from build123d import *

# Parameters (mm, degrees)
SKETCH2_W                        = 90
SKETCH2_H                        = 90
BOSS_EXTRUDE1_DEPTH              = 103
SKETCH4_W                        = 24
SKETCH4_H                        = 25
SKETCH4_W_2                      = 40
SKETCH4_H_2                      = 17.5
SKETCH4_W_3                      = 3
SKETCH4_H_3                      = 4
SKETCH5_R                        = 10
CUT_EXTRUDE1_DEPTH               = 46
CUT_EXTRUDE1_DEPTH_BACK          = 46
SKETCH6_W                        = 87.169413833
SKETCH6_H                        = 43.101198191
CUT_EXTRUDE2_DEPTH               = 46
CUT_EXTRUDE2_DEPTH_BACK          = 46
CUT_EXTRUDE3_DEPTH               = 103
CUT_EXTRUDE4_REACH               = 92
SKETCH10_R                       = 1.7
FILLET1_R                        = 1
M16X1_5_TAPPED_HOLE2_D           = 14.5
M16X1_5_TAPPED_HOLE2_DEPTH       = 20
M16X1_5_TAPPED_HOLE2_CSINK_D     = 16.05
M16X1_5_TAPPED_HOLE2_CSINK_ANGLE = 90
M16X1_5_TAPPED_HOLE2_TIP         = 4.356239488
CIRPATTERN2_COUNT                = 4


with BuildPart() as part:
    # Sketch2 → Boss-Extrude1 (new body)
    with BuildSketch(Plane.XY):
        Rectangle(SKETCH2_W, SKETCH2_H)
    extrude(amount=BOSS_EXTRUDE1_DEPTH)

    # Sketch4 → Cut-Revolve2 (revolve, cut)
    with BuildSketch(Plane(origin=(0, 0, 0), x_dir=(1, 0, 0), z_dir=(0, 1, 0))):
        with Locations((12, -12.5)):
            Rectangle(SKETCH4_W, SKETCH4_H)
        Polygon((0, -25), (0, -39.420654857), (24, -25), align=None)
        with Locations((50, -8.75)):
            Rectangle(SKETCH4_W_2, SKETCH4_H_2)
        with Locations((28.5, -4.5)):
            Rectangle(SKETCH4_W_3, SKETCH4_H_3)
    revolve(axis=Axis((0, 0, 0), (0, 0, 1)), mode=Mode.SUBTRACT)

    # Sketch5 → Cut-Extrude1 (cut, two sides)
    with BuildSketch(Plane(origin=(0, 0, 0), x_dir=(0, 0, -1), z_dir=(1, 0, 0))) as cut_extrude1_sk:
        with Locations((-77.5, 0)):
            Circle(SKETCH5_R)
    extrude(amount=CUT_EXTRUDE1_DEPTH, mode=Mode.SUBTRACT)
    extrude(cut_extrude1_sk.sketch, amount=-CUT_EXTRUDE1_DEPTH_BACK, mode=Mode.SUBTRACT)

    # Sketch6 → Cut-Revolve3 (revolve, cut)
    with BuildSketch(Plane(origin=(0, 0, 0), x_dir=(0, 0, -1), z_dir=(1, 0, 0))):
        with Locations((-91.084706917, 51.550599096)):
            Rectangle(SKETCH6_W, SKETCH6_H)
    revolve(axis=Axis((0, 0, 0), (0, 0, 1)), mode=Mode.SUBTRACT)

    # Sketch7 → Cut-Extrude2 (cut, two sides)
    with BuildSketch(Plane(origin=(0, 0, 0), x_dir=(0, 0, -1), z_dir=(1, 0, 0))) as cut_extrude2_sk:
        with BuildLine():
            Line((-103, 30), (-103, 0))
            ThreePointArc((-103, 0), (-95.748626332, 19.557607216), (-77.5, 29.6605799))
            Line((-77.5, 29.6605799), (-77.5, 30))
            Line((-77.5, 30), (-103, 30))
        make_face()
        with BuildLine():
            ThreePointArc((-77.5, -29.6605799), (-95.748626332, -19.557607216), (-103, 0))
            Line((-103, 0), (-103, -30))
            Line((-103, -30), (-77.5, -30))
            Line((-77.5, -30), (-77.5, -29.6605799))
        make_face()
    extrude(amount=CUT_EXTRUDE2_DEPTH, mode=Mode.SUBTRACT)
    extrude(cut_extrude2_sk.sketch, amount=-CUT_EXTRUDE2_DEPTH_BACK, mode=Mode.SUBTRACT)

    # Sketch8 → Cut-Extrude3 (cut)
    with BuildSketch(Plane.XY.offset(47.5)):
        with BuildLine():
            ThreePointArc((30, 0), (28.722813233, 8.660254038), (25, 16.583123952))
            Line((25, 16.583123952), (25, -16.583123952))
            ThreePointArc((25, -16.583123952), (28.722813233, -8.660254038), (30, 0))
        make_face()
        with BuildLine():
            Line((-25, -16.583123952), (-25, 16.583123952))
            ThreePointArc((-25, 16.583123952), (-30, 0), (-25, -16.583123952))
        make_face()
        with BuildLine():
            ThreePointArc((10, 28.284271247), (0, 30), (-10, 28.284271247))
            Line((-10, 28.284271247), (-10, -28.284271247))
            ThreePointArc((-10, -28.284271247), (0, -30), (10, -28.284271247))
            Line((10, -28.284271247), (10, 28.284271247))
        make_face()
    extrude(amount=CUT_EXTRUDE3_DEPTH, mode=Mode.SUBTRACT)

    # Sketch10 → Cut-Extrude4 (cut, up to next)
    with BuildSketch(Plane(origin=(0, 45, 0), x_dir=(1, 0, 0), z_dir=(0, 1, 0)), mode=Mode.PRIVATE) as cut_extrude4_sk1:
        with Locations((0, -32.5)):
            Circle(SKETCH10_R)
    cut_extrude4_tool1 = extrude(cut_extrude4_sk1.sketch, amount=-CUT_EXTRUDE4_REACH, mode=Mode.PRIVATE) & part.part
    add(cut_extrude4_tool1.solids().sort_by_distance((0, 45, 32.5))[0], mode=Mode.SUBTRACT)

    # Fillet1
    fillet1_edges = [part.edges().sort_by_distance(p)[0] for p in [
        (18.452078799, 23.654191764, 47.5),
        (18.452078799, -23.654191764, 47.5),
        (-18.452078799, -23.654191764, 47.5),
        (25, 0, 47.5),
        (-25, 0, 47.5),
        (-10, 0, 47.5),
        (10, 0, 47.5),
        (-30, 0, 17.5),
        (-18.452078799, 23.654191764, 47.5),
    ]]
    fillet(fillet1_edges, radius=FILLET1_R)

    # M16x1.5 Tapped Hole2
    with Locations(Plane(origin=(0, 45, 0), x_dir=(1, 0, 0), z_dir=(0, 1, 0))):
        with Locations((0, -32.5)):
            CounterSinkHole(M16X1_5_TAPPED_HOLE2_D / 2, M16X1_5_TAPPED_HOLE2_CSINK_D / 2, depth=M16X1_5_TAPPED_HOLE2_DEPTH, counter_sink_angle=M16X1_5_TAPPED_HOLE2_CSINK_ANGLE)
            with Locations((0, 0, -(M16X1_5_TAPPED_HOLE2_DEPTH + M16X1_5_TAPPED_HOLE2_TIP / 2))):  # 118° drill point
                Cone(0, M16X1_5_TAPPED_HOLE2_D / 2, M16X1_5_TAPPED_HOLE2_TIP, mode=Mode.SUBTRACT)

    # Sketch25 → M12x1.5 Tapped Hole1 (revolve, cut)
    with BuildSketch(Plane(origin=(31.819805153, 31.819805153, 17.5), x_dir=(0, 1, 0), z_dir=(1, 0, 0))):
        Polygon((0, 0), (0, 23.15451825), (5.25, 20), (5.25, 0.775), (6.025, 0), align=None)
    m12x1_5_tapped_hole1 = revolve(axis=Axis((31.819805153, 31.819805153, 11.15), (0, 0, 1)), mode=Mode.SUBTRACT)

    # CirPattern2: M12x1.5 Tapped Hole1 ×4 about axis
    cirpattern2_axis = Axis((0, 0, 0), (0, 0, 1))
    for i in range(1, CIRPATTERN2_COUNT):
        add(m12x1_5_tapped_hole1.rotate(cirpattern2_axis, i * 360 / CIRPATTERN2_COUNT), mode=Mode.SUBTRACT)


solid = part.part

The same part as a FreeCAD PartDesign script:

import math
import FreeCAD as App
import Part
import Sketcher
Q = App.Units.Quantity


def edges_at(feature, points):
    """Names of the edges that pass closest to the given points."""
    edges = feature.Shape.Edges
    near = lambda p: min(range(len(edges)), key=lambda i: edges[i].distToShape(Part.Vertex(*p))[0])
    return sorted({f"Edge{near(p) + 1}" for p in points})


def add_polygon(sketch, points):
    """Adds a closed chain of lines whose ends are joined by coincident constraints."""
    first, n = sketch.GeometryCount, len(points)
    for a, b in zip(points, points[1:] + points[:1]):
        sketch.addGeometry(Part.LineSegment(App.Vector(*a, 0), App.Vector(*b, 0)), False)
    for i in range(n):
        sketch.addConstraint(Sketcher.Constraint("Coincident", first + i, 2, first + (i + 1) % n, 1))

doc = App.newDocument("Part")
body = doc.addObject("PartDesign::Body", "Body")

sketch1 = doc.addObject("Sketcher::SketchObject", "Sketch")
body.addObject(sketch1)
sketch1.AttachmentSupport = (doc.XY_Plane, [""])
sketch1.MapMode = "FlatFace"
add_polygon(sketch1, [(-45, 45), (-45, -45), (45, -45), (45, 45)])
sketch1.addConstraint(Sketcher.Constraint("Vertical", 0))
sketch1.addConstraint(Sketcher.Constraint("Horizontal", 1))
sketch1.addConstraint(Sketcher.Constraint("Vertical", 2))
sketch1.addConstraint(Sketcher.Constraint("Horizontal", 3))
sketch1.addConstraint(Sketcher.Constraint("Symmetric", 0, 2, 2, 2, -1, 1))
sketch1.addConstraint(Sketcher.Constraint("Equal", 3, 0))
sketch1.addConstraint(Sketcher.Constraint("DistanceX", 1, 1, 1, 2, Q("90 mm")))
pad1 = doc.addObject("PartDesign::Pad", "Pad")
body.addObject(pad1)
pad1.Profile = sketch1
pad1.Length = 103

sketch2 = doc.addObject("Sketcher::SketchObject", "Sketch001")
body.addObject(sketch2)
sketch2.AttachmentSupport = (doc.XZ_Plane, [""])
sketch2.MapMode = "FlatFace"
add_polygon(sketch2, [(0, 0), (0, 39.4), (24, 25), (24, 0)])
add_polygon(sketch2, [(30, 6.5), (30, 17.5), (70, 17.5), (70, 0), (30, 0), (30, 2.5), (27, 2.5), (27, 6.5)])
sketch2.addConstraint(Sketcher.Constraint("Vertical", 0))
sketch2.addConstraint(Sketcher.Constraint("Vertical", 2))
sketch2.addConstraint(Sketcher.Constraint("Horizontal", 3))
sketch2.addConstraint(Sketcher.Constraint("Vertical", 4))
sketch2.addConstraint(Sketcher.Constraint("Horizontal", 5))
sketch2.addConstraint(Sketcher.Constraint("Vertical", 6))
sketch2.addConstraint(Sketcher.Constraint("Horizontal", 7))
sketch2.addConstraint(Sketcher.Constraint("Vertical", 8))
sketch2.addConstraint(Sketcher.Constraint("Horizontal", 9))
sketch2.addConstraint(Sketcher.Constraint("Vertical", 10))
sketch2.addConstraint(Sketcher.Constraint("Horizontal", 11))
sketch2.addConstraint(Sketcher.Constraint("Coincident", 3, 2, -1, 1))
sketch2.addConstraint(Sketcher.Constraint("PointOnObject", 6, 2, -1))
sketch2.addConstraint(Sketcher.Constraint("Vertical", 4, 2, 7, 2))
sketch2.addConstraint(Sketcher.Constraint("DistanceX", 3, 2, 3, 1, Q("24 mm")))
sketch2.addConstraint(Sketcher.Constraint("DistanceX", 5, 1, 5, 2, Q("40 mm")))
sketch2.addConstraint(Sketcher.Constraint("DistanceX", 9, 2, 9, 1, Q("3 mm")))
sketch2.addConstraint(Sketcher.Constraint("DistanceY", 2, 2, 2, 1, Q("25 mm")))
sketch2.addConstraint(Sketcher.Constraint("DistanceY", 4, 1, 4, 2, Q("11 mm")))
sketch2.addConstraint(Sketcher.Constraint("DistanceY", 10, 1, 10, 2, Q("4 mm")))
sketch2.addConstraint(Sketcher.Constraint("Angle", 1, Q("-31 deg")))
sketch2.addConstraint(Sketcher.Constraint("DistanceY", 6, 2, 6, 1, Q("17.5 mm")))
sketch2.addConstraint(Sketcher.Constraint("DistanceX", -1, 1, 4, 2, Q("30 mm")))
groove = doc.addObject("PartDesign::Groove", "Groove")
body.addObject(groove)
groove.Profile = sketch2
groove.ReferenceAxis = (sketch2, ["V_Axis"])
groove.Angle = 360

sketch3 = doc.addObject("Sketcher::SketchObject", "Sketch002")
body.addObject(sketch3)
sketch3.AttachmentSupport = (doc.YZ_Plane, [""])
sketch3.MapMode = "FlatFace"
sketch3.addGeometry(Part.Circle(App.Vector(0, 78, 0), App.Vector(0, 0, 1), 10), False)
sketch3.addConstraint(Sketcher.Constraint("PointOnObject", 0, 3, -2))
sketch3.addConstraint(Sketcher.Constraint("Diameter", 0, Q("20 mm")))
sketch3.addConstraint(Sketcher.Constraint("DistanceY", -1, 1, 0, 3, Q("77.5 mm")))
pocket1 = doc.addObject("PartDesign::Pocket", "Pocket")
body.addObject(pocket1)
pocket1.Profile = sketch3
pocket1.Type = "ThroughAll"
pocket1.Midplane = True

sketch4 = doc.addObject("Sketcher::SketchObject", "Sketch003")
body.addObject(sketch4)
sketch4.AttachmentSupport = (doc.YZ_Plane, [""])
sketch4.MapMode = "FlatFace"
add_polygon(sketch4, [(73, 135), (30, 135), (30, 48), (73, 48)])
sketch4.addConstraint(Sketcher.Constraint("Horizontal", 0))
sketch4.addConstraint(Sketcher.Constraint("Vertical", 1))
sketch4.addConstraint(Sketcher.Constraint("Horizontal", 2))
sketch4.addConstraint(Sketcher.Constraint("Vertical", 3))
sketch4.addConstraint(Sketcher.Constraint("DistanceX", -1, 1, 0, 2, Q("30 mm")))
sketch4.addConstraint(Sketcher.Constraint("DistanceY", -1, 1, 1, 2, Q("47.5 mm")))
sketch4.addConstraint(Sketcher.Constraint("DistanceX", 0, 2, 0, 1, Q("43.101198 mm")))
sketch4.addConstraint(Sketcher.Constraint("DistanceY", 1, 2, 1, 1, Q("87.169414 mm")))
groove2 = doc.addObject("PartDesign::Groove", "Groove001")
body.addObject(groove2)
groove2.Profile = sketch4
groove2.ReferenceAxis = (sketch4, ["V_Axis"])
groove2.Angle = 360

sketch5 = doc.addObject("Sketcher::SketchObject", "Sketch004")
body.addObject(sketch5)
sketch5.AttachmentSupport = (doc.YZ_Plane, [""])
sketch5.MapMode = "FlatFace"
sketch5.addGeometry(Part.LineSegment(App.Vector(30, 103, 0), App.Vector(0, 103, 0)), False)
sketch5.addGeometry(Part.ArcOfCircle(Part.Circle(App.Vector(0, 73, 0), App.Vector(0, 0, 1), 30), math.radians(9), math.radians(90)), False)
sketch5.addGeometry(Part.LineSegment(App.Vector(29.66, 77.5, 0), App.Vector(30, 77.5, 0)), False)
sketch5.addGeometry(Part.LineSegment(App.Vector(30, 77.5, 0), App.Vector(30, 103, 0)), False)
sketch5.addGeometry(Part.ArcOfCircle(Part.Circle(App.Vector(0, 73, 0), App.Vector(0, 0, 1), 30), math.radians(90), math.radians(171)), False)
sketch5.addGeometry(Part.LineSegment(App.Vector(0, 103, 0), App.Vector(-30, 103, 0)), False)
sketch5.addGeometry(Part.LineSegment(App.Vector(-30, 103, 0), App.Vector(-30, 77.5, 0)), False)
sketch5.addGeometry(Part.LineSegment(App.Vector(-30, 77.5, 0), App.Vector(-29.66, 77.5, 0)), False)
sketch5.addConstraint(Sketcher.Constraint("Tangent", 0, 2, 1, 2))
sketch5.addConstraint(Sketcher.Constraint("Coincident", 1, 1, 2, 1))
sketch5.addConstraint(Sketcher.Constraint("Coincident", 2, 2, 3, 1))
sketch5.addConstraint(Sketcher.Constraint("Coincident", 3, 2, 0, 1))
sketch5.addConstraint(Sketcher.Constraint("Tangent", 4, 1, 5, 1))
sketch5.addConstraint(Sketcher.Constraint("Coincident", 5, 2, 6, 1))
sketch5.addConstraint(Sketcher.Constraint("Coincident", 6, 2, 7, 1))
sketch5.addConstraint(Sketcher.Constraint("Coincident", 7, 2, 4, 2))
sketch5.addConstraint(Sketcher.Constraint("Horizontal", 0))
sketch5.addConstraint(Sketcher.Constraint("Horizontal", 2))
sketch5.addConstraint(Sketcher.Constraint("Vertical", 3))
sketch5.addConstraint(Sketcher.Constraint("Horizontal", 5))
sketch5.addConstraint(Sketcher.Constraint("Vertical", 6))
sketch5.addConstraint(Sketcher.Constraint("Horizontal", 7))
sketch5.addConstraint(Sketcher.Constraint("Coincident", 4, 3, 1, 3))
sketch5.addConstraint(Sketcher.Constraint("Equal", 1, 4))
sketch5.addConstraint(Sketcher.Constraint("Symmetric", 2, 2, 6, 2, -2))
sketch5.addConstraint(Sketcher.Constraint("PointOnObject", 1, 3, -2))
sketch5.addConstraint(Sketcher.Constraint("Radius", 1, Q("30 mm")))
sketch5.addConstraint(Sketcher.Constraint("DistanceX", 0, 2, 0, 1, Q("30 mm")))
sketch5.addConstraint(Sketcher.Constraint("DistanceY", 3, 1, 3, 2, Q("25.5 mm")))
sketch5.addConstraint(Sketcher.Constraint("DistanceY", -1, 1, 1, 3, Q("73 mm")))
pocket2 = doc.addObject("PartDesign::Pocket", "Pocket001")
body.addObject(pocket2)
pocket2.Profile = sketch5
pocket2.Type = "ThroughAll"
pocket2.Midplane = True

sketch6 = doc.addObject("Sketcher::SketchObject", "Sketch005")
body.addObject(sketch6)
sketch6.AttachmentSupport = (doc.XY_Plane, [""])
sketch6.MapMode = "FlatFace"
sketch6.AttachmentOffset = App.Placement(App.Vector(0, 0, 47.5), App.Rotation())
sketch6.addGeometry(Part.ArcOfCircle(Part.Circle(App.Vector(0, 0, 0), App.Vector(0, 0, 1), 30), math.radians(0), math.radians(34)), False)
sketch6.addGeometry(Part.LineSegment(App.Vector(25, 17, 0), App.Vector(25, -17, 0)), False)
sketch6.addGeometry(Part.ArcOfCircle(Part.Circle(App.Vector(0, 0, 0), App.Vector(0, 0, 1), 30), math.radians(-34), math.radians(0)), False)
sketch6.addGeometry(Part.LineSegment(App.Vector(-25, -17, 0), App.Vector(-25, 17, 0)), False)
sketch6.addGeometry(Part.ArcOfCircle(Part.Circle(App.Vector(0, 0, 0), App.Vector(0, 0, 1), 30), math.radians(146), math.radians(214)), False)
sketch6.addGeometry(Part.ArcOfCircle(Part.Circle(App.Vector(0, 0, 0), App.Vector(0, 0, 1), 30), math.radians(71), math.radians(109)), False)
sketch6.addGeometry(Part.LineSegment(App.Vector(-10, 28, 0), App.Vector(-10, -28, 0)), False)
sketch6.addGeometry(Part.ArcOfCircle(Part.Circle(App.Vector(0, 0, 0), App.Vector(0, 0, 1), 30), math.radians(-109), math.radians(-71)), False)
sketch6.addGeometry(Part.LineSegment(App.Vector(10, -28, 0), App.Vector(10, 28, 0)), False)
sketch6.addConstraint(Sketcher.Constraint("Coincident", 0, 2, 1, 1))
sketch6.addConstraint(Sketcher.Constraint("Coincident", 1, 2, 2, 1))
sketch6.addConstraint(Sketcher.Constraint("Tangent", 2, 2, 0, 1))
sketch6.addConstraint(Sketcher.Constraint("Coincident", 3, 1, 4, 2))
sketch6.addConstraint(Sketcher.Constraint("Coincident", 4, 1, 3, 2))
sketch6.addConstraint(Sketcher.Constraint("Coincident", 5, 2, 6, 1))
sketch6.addConstraint(Sketcher.Constraint("Coincident", 6, 2, 7, 1))
sketch6.addConstraint(Sketcher.Constraint("Coincident", 7, 2, 8, 1))
sketch6.addConstraint(Sketcher.Constraint("Coincident", 8, 2, 5, 1))
sketch6.addConstraint(Sketcher.Constraint("Vertical", 1))
sketch6.addConstraint(Sketcher.Constraint("Vertical", 3))
sketch6.addConstraint(Sketcher.Constraint("Vertical", 6))
sketch6.addConstraint(Sketcher.Constraint("Vertical", 8))
sketch6.addConstraint(Sketcher.Constraint("Coincident", 0, 3, -1, 1))
sketch6.addConstraint(Sketcher.Constraint("Coincident", 4, 3, -1, 1))
sketch6.addConstraint(Sketcher.Constraint("Coincident", 5, 3, -1, 1))
sketch6.addConstraint(Sketcher.Constraint("Coincident", 7, 3, -1, 1))
sketch6.addConstraint(Sketcher.Constraint("Equal", 0, 2))
sketch6.addConstraint(Sketcher.Constraint("Equal", 2, 4))
sketch6.addConstraint(Sketcher.Constraint("Equal", 4, 5))
sketch6.addConstraint(Sketcher.Constraint("Equal", 5, 7))
sketch6.addConstraint(Sketcher.Constraint("PointOnObject", 2, 2, -1))
sketch6.addConstraint(Sketcher.Constraint("Horizontal", 1, 2, 3, 1))
sketch6.addConstraint(Sketcher.Constraint("Horizontal", 6, 2, 7, 2))
sketch6.addConstraint(Sketcher.Constraint("Radius", 0, Q("30 mm")))
sketch6.addConstraint(Sketcher.Constraint("DistanceX", -1, 1, 0, 2, Q("25 mm")))
sketch6.addConstraint(Sketcher.Constraint("DistanceX", 5, 2, -1, 1, Q("10 mm")))
pocket3 = doc.addObject("PartDesign::Pocket", "Pocket002")
body.addObject(pocket3)
pocket3.Profile = sketch6
pocket3.Length = 103
pocket3.Reversed = True

sketch7 = doc.addObject("Sketcher::SketchObject", "Sketch006")
body.addObject(sketch7)
sketch7.AttachmentSupport = (doc.XZ_Plane, [""])
sketch7.MapMode = "FlatFace"
sketch7.AttachmentOffset = App.Placement(App.Vector(0, 0, -45), App.Rotation())
sketch7.addGeometry(Part.Circle(App.Vector(0, 32.5, 0), App.Vector(0, 0, 1), 1.7), False)
sketch7.addConstraint(Sketcher.Constraint("PointOnObject", 0, 3, -2))
sketch7.addConstraint(Sketcher.Constraint("Diameter", 0, Q("3.4 mm")))
sketch7.addConstraint(Sketcher.Constraint("DistanceY", -1, 1, 0, 3, Q("32.5 mm")))
pocket4 = doc.addObject("PartDesign::Pocket", "Pocket003")
body.addObject(pocket4)
pocket4.Profile = sketch7
pocket4.Type = "UpToFirst"
pocket4.Reversed = True
doc.recompute()

fillet = doc.addObject("PartDesign::Fillet", "Fillet")
body.addObject(fillet)
fillet.Base = (pocket4, edges_at(pocket4, [
    (18.452, 23.654, 47.5),
    (18.452, -23.654, 47.5),
    (-18.452, -23.654, 47.5),
    (25, 0, 47.5),
    (-25, 0, 47.5),
    (-10, 0, 47.5),
    (10, 0, 47.5),
    (-30, 0, 17.5),
    (-18.452, 23.654, 47.5),
]))
fillet.Radius = 1

sketch8 = doc.addObject("Sketcher::SketchObject", "Sketch007")
body.addObject(sketch8)
sketch8.AttachmentSupport = (doc.XZ_Plane, [""])
sketch8.MapMode = "FlatFace"
sketch8.AttachmentOffset = App.Placement(App.Vector(0, 0, -45), App.Rotation())
sketch8.addGeometry(Part.Circle(App.Vector(0, 32, 0), App.Vector(0, 0, 1), 7), False)
sketch8.addConstraint(Sketcher.Constraint("PointOnObject", 0, 3, -2))
sketch8.addConstraint(Sketcher.Constraint("Diameter", 0, Q("14.5 mm")))
sketch8.addConstraint(Sketcher.Constraint("DistanceY", -1, 1, 0, 3, Q("32.5 mm")))
doc.recompute()
hole = doc.addObject("PartDesign::Hole", "Hole")
body.addObject(hole)
hole.Profile = sketch8
hole.ThreadType = "None"
hole.Diameter = 14.5
hole.DepthType = "Dimension"
hole.Depth = 20
hole.DrillPoint = "Angled"
hole.DrillPointAngle = 118
hole.HoleCutType = "Countersink"
hole.HoleCutDiameter = 16.05
hole.HoleCutCountersinkAngle = 90
hole.Reversed = True

sketch9 = doc.addObject("Sketcher::SketchObject", "Sketch008")
body.addObject(sketch9)
sketch9.AttachmentSupport = (doc.YZ_Plane, [""])
sketch9.MapMode = "FlatFace"
sketch9.AttachmentOffset = App.Placement(App.Vector(0, 0, 31.819805), App.Rotation())
add_polygon(sketch9, [(31.8, 40.7), (31.8, 17.5), (37.8, 17.5), (37.1, 18.3), (37.1, 37.5)])
sketch9.addGeometry(Part.LineSegment(App.Vector(31.8, 17.5, 0), App.Vector(31.8, 40.7, 0)), True)
sketch9.addConstraint(Sketcher.Constraint("Vertical", 0))
sketch9.addConstraint(Sketcher.Constraint("Horizontal", 1))
sketch9.addConstraint(Sketcher.Constraint("Vertical", 3))
sketch9.addConstraint(Sketcher.Constraint("Vertical", 5))
sketch9.addConstraint(Sketcher.Constraint("Coincident", 5, 1, 0, 2))
sketch9.addConstraint(Sketcher.Constraint("Equal", 0, 5))
sketch9.addConstraint(Sketcher.Constraint("Angle", 2, Q("135 deg")))
sketch9.addConstraint(Sketcher.Constraint("Angle", 4, Q("149 deg")))
sketch9.addConstraint(Sketcher.Constraint("DistanceY", 1, 2, 3, 2, Q("20 mm")))
sketch9.addConstraint(Sketcher.Constraint("DistanceY", -1, 1, 0, 2, Q("17.5 mm")))
sketch9.addConstraint(Sketcher.Constraint("DistanceX", 1, 1, 1, 2, Q("6.025 mm")))
sketch9.addConstraint(Sketcher.Constraint("DistanceY", 3, 1, 3, 2, Q("19.225 mm")))
sketch9.addConstraint(Sketcher.Constraint("DistanceX", -1, 1, 0, 2, Q("31.819805 mm")))
groove3 = doc.addObject("PartDesign::Groove", "Groove002")
body.addObject(groove3)
groove3.Profile = sketch9
groove3.ReferenceAxis = (sketch9, ["Axis0"])
groove3.Angle = 360
doc.recompute()

polarpattern = doc.addObject("PartDesign::PolarPattern", "PolarPattern")
body.addObject(polarpattern)
polarpattern.Originals = [groove3]
polarpattern.Axis = (doc.Z_Axis, [""])
polarpattern.Angle = 360
polarpattern.Occurrences = 4
body.Tip = polarpattern

doc.recompute()
